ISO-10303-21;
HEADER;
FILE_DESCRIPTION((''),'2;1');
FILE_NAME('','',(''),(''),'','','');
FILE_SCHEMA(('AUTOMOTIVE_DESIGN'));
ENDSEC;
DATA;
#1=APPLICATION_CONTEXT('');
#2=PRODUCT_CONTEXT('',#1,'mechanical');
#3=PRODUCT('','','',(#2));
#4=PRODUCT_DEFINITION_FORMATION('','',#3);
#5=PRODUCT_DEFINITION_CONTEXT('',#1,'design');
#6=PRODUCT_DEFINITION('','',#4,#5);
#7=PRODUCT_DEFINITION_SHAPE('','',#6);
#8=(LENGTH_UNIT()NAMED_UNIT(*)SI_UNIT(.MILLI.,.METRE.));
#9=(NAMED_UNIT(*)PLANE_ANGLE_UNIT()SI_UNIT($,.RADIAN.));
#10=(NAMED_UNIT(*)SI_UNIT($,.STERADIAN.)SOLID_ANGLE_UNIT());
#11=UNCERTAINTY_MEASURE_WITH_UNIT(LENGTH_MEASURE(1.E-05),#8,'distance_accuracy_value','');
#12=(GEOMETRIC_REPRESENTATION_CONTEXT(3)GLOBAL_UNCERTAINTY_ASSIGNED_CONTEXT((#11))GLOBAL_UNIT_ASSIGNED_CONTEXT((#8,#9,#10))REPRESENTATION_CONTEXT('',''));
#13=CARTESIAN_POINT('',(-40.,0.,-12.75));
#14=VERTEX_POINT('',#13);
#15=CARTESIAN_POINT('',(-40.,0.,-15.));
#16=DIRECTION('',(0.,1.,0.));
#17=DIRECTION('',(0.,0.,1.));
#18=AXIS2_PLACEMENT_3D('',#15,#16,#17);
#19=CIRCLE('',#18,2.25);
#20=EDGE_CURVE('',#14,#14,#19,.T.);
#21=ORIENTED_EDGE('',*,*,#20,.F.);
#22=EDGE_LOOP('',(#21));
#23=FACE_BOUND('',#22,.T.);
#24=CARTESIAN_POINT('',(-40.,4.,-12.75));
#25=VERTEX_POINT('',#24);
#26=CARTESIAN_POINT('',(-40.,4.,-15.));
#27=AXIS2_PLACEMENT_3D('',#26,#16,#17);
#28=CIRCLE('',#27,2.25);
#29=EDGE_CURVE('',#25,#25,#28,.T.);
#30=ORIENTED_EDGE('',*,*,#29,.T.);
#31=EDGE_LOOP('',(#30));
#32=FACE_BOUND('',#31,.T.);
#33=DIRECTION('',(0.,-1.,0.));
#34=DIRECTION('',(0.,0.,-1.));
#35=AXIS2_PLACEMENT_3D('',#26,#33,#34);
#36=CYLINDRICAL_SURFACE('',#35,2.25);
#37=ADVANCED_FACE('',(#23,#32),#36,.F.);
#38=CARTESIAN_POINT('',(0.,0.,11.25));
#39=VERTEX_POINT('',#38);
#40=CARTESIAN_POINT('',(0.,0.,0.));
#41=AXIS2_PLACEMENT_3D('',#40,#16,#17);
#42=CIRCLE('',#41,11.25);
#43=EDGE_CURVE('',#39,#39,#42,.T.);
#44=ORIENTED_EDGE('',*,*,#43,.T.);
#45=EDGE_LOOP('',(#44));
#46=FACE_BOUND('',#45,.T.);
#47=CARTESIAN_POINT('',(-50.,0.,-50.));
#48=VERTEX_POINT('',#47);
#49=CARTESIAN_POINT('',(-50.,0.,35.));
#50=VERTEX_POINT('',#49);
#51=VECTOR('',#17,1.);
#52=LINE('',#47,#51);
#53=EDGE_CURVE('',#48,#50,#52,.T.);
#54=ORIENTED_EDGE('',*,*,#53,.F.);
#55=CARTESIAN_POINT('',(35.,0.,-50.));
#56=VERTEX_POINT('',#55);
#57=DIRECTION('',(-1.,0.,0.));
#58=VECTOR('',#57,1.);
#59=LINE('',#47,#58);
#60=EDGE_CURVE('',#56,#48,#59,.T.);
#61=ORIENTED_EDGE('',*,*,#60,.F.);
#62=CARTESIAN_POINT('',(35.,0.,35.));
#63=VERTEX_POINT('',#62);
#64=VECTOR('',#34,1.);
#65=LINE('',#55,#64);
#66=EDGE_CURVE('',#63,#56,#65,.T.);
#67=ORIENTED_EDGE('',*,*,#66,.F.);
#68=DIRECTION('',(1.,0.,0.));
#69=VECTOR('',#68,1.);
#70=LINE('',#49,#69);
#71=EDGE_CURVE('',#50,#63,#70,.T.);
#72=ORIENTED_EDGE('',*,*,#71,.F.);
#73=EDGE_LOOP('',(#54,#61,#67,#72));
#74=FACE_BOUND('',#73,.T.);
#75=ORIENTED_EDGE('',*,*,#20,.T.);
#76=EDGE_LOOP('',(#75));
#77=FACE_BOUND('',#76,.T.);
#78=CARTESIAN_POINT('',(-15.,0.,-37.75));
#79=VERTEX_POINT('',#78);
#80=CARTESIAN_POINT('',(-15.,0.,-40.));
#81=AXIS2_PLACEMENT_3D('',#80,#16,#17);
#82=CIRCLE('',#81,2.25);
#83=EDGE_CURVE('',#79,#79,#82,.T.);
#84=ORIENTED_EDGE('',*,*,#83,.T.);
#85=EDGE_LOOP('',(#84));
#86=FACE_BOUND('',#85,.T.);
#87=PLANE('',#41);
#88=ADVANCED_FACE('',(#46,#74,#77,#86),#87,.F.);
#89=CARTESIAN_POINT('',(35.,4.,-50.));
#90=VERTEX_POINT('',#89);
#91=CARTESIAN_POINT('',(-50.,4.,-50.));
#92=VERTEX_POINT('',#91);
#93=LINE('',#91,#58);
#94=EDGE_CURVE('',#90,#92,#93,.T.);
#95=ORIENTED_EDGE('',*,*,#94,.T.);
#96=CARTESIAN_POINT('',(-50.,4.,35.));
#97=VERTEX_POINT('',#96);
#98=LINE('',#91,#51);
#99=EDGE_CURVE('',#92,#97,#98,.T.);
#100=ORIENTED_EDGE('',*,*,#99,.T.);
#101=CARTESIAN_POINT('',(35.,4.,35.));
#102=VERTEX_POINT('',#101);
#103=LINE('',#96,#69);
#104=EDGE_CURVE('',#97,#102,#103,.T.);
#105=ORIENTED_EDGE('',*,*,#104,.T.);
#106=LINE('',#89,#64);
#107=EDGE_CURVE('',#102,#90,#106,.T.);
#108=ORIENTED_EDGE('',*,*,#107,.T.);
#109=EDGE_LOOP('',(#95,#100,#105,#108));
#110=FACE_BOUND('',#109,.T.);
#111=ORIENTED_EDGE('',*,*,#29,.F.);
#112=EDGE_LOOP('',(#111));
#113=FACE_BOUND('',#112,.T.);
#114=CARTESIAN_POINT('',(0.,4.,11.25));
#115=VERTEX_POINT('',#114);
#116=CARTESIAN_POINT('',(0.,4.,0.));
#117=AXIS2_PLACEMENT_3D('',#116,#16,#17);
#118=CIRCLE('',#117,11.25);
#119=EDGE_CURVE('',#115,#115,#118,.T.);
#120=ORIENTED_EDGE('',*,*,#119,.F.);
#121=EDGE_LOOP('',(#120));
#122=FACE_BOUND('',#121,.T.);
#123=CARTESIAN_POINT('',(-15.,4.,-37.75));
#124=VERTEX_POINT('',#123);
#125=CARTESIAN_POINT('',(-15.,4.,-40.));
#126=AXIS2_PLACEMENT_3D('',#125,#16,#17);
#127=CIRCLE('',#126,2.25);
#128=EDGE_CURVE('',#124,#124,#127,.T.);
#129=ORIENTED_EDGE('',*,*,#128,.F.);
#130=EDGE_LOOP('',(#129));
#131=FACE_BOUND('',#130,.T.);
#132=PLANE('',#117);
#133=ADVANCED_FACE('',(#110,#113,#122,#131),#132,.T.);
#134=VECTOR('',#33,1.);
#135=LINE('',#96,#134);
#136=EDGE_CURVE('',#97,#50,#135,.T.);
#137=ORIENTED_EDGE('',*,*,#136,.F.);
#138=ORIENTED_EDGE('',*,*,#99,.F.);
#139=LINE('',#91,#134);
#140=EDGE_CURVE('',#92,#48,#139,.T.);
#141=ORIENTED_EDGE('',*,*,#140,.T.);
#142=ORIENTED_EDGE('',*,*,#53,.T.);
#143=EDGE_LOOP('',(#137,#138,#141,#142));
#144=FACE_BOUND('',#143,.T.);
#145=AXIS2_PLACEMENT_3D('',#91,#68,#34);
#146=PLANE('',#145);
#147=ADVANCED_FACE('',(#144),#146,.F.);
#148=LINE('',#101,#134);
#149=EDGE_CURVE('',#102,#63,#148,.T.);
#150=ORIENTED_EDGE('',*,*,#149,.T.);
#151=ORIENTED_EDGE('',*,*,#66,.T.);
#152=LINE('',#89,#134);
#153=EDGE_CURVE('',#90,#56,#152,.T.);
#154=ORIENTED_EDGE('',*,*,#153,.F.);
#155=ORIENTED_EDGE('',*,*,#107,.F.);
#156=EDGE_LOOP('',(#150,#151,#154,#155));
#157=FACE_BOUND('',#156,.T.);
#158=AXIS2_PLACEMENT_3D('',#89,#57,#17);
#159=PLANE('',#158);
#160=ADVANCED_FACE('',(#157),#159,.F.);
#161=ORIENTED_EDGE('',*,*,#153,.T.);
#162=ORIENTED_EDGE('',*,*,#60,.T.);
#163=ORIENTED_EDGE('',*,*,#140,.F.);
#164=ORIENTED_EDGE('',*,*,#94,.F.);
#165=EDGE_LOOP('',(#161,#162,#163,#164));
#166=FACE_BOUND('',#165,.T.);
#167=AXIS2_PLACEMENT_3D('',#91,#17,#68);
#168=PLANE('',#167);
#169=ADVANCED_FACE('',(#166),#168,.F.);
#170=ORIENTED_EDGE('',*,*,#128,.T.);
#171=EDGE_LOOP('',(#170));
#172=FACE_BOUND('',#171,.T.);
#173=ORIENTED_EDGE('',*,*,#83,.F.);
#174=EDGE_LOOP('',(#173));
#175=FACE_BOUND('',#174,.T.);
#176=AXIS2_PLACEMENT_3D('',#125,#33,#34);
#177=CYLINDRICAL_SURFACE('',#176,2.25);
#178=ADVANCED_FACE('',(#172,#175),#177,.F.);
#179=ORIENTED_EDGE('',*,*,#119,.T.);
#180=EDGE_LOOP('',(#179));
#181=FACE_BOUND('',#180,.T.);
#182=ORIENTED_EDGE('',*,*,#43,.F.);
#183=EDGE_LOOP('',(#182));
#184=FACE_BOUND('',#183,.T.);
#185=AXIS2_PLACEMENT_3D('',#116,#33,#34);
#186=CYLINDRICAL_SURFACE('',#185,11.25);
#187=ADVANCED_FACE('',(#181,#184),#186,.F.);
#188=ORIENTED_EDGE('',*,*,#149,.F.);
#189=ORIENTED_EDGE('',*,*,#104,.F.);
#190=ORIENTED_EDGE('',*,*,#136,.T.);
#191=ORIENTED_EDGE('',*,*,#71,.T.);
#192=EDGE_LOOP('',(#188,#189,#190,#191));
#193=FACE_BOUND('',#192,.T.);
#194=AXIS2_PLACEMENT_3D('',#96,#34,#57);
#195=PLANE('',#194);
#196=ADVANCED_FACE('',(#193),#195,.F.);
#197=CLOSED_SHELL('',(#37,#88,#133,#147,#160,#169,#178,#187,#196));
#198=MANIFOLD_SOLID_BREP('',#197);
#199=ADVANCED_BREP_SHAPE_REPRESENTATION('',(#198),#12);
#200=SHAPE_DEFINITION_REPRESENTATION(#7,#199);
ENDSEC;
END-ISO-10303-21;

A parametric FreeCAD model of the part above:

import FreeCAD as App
import Part
import Sketcher

doc = App.newDocument("Part")
body = doc.addObject("PartDesign::Body", "Body")

# Sketch on XZ plane
sketch1 = doc.addObject("Sketcher::SketchObject", "Sketch")
body.addObject(sketch1)
sketch1.AttachmentSupport = (doc.XZ_Plane, [""])
sketch1.MapMode = "FlatFace"
sketch1.addGeometry([
    Part.LineSegment(App.Vector(-50, -50, 0), App.Vector(-50, 35, 0)),  # 0
    Part.LineSegment(App.Vector(-50, 35, 0), App.Vector(35, 35, 0)),  # 1
    Part.LineSegment(App.Vector(35, 35, 0), App.Vector(35, -50, 0)),  # 2
    Part.LineSegment(App.Vector(35, -50, 0), App.Vector(-50, -50, 0)),  # 3
    Part.Circle(App.Vector(-40, -15, 0), App.Vector(0, 0, 1), 2.25),  # 4
    Part.Circle(App.Vector(0, 0, 0), App.Vector(0, 0, 1), 11.25),  # 5
    Part.Circle(App.Vector(-15, -40, 0), App.Vector(0, 0, 1), 2.25),  # 6
], False)
sketch1.addConstraint([
    Sketcher.Constraint("Coincident", 0, 2, 1, 1),
    Sketcher.Constraint("Coincident", 1, 2, 2, 1),
    Sketcher.Constraint("Coincident", 2, 2, 3, 1),
    Sketcher.Constraint("Coincident", 3, 2, 0, 1),
    Sketcher.Constraint("Vertical", 0),
    Sketcher.Constraint("Horizontal", 1),
    Sketcher.Constraint("Vertical", 2),
    Sketcher.Constraint("Horizontal", 3),
    Sketcher.Constraint("Coincident", 5, 3, -1, 1),
    Sketcher.Constraint("Equal", 4, 6),
    Sketcher.Constraint("Equal", 3, 0),
    Sketcher.Constraint("Diameter", 4, 4.5),
    Sketcher.Constraint("Diameter", 5, 22.5),
    Sketcher.Constraint("DistanceX", 1, 1, 1, 2, 85.0),
    Sketcher.Constraint("DistanceX", 4, 3, -1, 1, 40.0),
    Sketcher.Constraint("DistanceY", 4, 3, -1, 1, 15.0),
    Sketcher.Constraint("DistanceX", 6, 3, -1, 1, 15.0),
    Sketcher.Constraint("DistanceY", 6, 3, -1, 1, 40.0),
    Sketcher.Constraint("DistanceX", 0, 2, -1, 1, 50.0),
    Sketcher.Constraint("DistanceY", -1, 1, 0, 2, 35.0),
])
pad1 = doc.addObject("PartDesign::Pad", "Pad")
body.addObject(pad1)
pad1.Profile = sketch1
pad1.Length = 4
pad1.Reversed = True

doc.recompute()
